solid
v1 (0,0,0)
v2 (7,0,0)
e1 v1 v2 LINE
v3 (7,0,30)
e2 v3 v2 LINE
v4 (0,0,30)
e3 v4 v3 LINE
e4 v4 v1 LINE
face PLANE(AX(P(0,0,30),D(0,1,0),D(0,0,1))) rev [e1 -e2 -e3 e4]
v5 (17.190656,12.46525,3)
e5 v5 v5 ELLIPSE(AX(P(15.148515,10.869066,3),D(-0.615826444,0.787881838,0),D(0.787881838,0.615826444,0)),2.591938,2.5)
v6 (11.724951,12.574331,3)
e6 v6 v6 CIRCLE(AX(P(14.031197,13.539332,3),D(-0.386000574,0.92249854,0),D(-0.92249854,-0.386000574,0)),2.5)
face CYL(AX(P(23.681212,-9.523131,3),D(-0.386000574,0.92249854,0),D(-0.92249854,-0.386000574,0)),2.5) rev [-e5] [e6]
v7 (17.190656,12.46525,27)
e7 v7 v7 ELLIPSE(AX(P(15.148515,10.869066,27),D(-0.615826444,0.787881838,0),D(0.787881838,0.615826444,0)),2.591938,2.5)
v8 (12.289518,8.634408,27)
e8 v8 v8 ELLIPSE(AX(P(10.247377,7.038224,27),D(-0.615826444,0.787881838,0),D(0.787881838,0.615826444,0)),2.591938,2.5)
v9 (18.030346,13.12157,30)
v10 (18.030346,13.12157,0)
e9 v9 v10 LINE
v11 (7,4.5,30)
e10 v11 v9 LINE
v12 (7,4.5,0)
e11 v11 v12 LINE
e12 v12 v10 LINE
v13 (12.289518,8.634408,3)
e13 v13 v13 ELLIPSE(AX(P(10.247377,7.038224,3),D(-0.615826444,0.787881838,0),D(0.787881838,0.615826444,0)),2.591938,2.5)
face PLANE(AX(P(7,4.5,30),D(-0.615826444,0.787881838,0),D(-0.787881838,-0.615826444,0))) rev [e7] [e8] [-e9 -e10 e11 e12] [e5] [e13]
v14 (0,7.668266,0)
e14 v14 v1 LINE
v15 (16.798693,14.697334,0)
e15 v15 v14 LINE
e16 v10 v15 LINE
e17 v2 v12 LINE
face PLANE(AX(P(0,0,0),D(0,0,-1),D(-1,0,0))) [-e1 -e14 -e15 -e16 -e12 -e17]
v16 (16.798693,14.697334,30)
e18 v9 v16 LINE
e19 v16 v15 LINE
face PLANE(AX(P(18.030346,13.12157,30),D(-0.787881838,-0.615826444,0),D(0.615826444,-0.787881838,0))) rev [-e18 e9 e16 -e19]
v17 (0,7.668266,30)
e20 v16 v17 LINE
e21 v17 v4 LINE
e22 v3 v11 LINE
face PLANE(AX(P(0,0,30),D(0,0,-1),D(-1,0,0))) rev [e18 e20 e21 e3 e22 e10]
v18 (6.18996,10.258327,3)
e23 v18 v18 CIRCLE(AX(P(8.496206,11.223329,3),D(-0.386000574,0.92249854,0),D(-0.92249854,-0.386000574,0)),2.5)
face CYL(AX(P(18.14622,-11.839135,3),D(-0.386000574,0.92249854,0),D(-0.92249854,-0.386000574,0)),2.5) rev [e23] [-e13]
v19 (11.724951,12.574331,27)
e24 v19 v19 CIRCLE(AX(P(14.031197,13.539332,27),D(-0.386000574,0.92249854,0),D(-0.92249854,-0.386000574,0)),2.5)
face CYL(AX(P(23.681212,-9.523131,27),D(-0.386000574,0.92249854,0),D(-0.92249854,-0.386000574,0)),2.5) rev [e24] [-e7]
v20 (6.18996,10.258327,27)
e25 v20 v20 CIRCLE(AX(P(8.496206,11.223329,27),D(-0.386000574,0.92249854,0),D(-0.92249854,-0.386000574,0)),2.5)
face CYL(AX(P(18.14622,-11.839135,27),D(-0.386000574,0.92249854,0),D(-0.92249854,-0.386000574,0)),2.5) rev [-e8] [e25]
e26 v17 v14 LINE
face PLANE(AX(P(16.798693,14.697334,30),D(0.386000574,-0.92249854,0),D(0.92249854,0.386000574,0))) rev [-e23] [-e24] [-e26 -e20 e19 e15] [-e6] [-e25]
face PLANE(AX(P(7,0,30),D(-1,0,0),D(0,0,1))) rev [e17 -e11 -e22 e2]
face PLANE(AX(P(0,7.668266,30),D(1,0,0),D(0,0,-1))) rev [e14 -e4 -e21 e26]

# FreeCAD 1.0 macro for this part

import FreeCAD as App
import Part
import Sketcher
from FreeCAD import Vector
Q = App.Units.Quantity

doc = App.newDocument("Part")
params = doc.addObject("Spreadsheet::Sheet", "Params")
for row, (alias, value) in enumerate([
    ("sketch1_width", "7 mm"),
    ("sketch1_length", "14 mm"),
    ("sketch1_length2", "2 mm"),
    ("sketch1_height", "4.5 mm"),
    ("pad1_length", "30 mm"),
    ("sketch2_diameter", "5 mm"),
    ("pocket1_length", "25 mm"),
], start=1):
    params.set(f"A{row}", alias)
    params.set(f"B{row}", "=" + value)
    params.setAlias(f"B{row}", alias)

body = doc.addObject("PartDesign::Body", "Body")

sketch1 = doc.addObject("Sketcher::SketchObject", "Sketch")
body.addObject(sketch1)
sketch1.AttachmentSupport = (doc.XY_Plane, [""])
sketch1.MapMode = "FlatFace"
sketch1.addGeometry([
    Part.LineSegment(Vector(0, 0, 0), Vector(7, 0, 0)),
    Part.LineSegment(Vector(7, 0, 0), Vector(7, 4.5, 0)),
    Part.LineSegment(Vector(7, 4.5, 0), Vector(18.030346, 13.12157, 0)),
    Part.LineSegment(Vector(18.030346, 13.12157, 0), Vector(16.798693, 14.697334, 0)),
    Part.LineSegment(Vector(16.798693, 14.697334, 0), Vector(0, 7.668266, 0)),
    Part.LineSegment(Vector(0, 7.668266, 0), Vector(0, 0, 0)),
], False)
sketch1.addConstraint([
    Sketcher.Constraint("Coincident", 0, 2, 1, 1),
    Sketcher.Constraint("Coincident", 1, 2, 2, 1),
    Sketcher.Constraint("Coincident", 2, 2, 3, 1),
    Sketcher.Constraint("Coincident", 3, 2, 4, 1),
    Sketcher.Constraint("Coincident", 4, 2, 5, 1),
    Sketcher.Constraint("Coincident", 5, 2, 0, 1),
    Sketcher.Constraint("Horizontal", 0),
    Sketcher.Constraint("Vertical", 1),
    Sketcher.Constraint("Vertical", 5),
    Sketcher.Constraint("Coincident", 5, 2, -1, 1),
    Sketcher.Constraint("Perpendicular", 2, 3),
    Sketcher.Constraint("DistanceX", 0, 1, 0, 2, Q("7 mm")),
    Sketcher.Constraint("Distance", 2, Q("14 mm")),
    Sketcher.Constraint("Distance", 3, Q("2 mm")),
    Sketcher.Constraint("DistanceY", 1, 1, 1, 2, Q("4.5 mm")),
    Sketcher.Constraint("DistanceY", 5, 2, 5, 1, Q("7.668266 mm")),
    Sketcher.Constraint("DistanceY", -1, 1, 2, 2, Q("13.12157 mm")),
])
sketch1.setExpression("Constraints[11]", "Params.sketch1_width")
sketch1.setExpression("Constraints[12]", "Params.sketch1_length")
sketch1.setExpression("Constraints[13]", "Params.sketch1_length2")
sketch1.setExpression("Constraints[14]", "Params.sketch1_height")
pad1 = doc.addObject("PartDesign::Pad", "Pad")
body.addObject(pad1)
pad1.Profile = sketch1
pad1.setExpression("Length", "Params.pad1_length")

sketch2 = doc.addObject("Sketcher::SketchObject", "Sketch001")
body.addObject(sketch2)
sketch2.Placement = App.Placement(Vector(-2.730554, 6.525721, 0), App.Rotation(Vector(0.92249854, 0.386000574, 0), Vector(0, 0, -0.999999999), Vector(-0.386000574, 0.92249854, 0), "ZXY"))
sketch2.addGeometry([
    Part.Circle(Vector(18.169949, -3, 0), Vector(0, 0, 1), 2.5),
    Part.Circle(Vector(12.169949, -3, 0), Vector(0, 0, 1), 2.5),
    Part.Circle(Vector(18.169949, -27, 0), Vector(0, 0, 1), 2.5),
    Part.Circle(Vector(12.169949, -27, 0), Vector(0, 0, 1), 2.5),
], False)
sketch2.addConstraint([
    Sketcher.Constraint("Equal", 0, 1),
    Sketcher.Constraint("Equal", 1, 2),
    Sketcher.Constraint("Equal", 2, 3),
    Sketcher.Constraint("Horizontal", 0, 3, 1, 3),
    Sketcher.Constraint("Horizontal", 2, 3, 3, 3),
    Sketcher.Constraint("Vertical", 0, 3, 2, 3),
    Sketcher.Constraint("Vertical", 1, 3, 3, 3),
    Sketcher.Constraint("Diameter", 0, Q("5 mm")),
    Sketcher.Constraint("DistanceY", 0, 3, -1, 1, Q("3 mm")),
    Sketcher.Constraint("DistanceY", 2, 3, -1, 1, Q("27 mm")),
    Sketcher.Constraint("DistanceX", 1, 3, 0, 3, Q("6 mm")),
    Sketcher.Constraint("DistanceX", -1, 1, 0, 3, Q("18.169949 mm")),
])
sketch2.setExpression("Constraints[7]", "Params.sketch2_diameter")
pocket1 = doc.addObject("PartDesign::Pocket", "Pocket")
body.addObject(pocket1)
pocket1.Profile = sketch2
pocket1.setExpression("Length", "Params.pocket1_length")

doc.recompute()
